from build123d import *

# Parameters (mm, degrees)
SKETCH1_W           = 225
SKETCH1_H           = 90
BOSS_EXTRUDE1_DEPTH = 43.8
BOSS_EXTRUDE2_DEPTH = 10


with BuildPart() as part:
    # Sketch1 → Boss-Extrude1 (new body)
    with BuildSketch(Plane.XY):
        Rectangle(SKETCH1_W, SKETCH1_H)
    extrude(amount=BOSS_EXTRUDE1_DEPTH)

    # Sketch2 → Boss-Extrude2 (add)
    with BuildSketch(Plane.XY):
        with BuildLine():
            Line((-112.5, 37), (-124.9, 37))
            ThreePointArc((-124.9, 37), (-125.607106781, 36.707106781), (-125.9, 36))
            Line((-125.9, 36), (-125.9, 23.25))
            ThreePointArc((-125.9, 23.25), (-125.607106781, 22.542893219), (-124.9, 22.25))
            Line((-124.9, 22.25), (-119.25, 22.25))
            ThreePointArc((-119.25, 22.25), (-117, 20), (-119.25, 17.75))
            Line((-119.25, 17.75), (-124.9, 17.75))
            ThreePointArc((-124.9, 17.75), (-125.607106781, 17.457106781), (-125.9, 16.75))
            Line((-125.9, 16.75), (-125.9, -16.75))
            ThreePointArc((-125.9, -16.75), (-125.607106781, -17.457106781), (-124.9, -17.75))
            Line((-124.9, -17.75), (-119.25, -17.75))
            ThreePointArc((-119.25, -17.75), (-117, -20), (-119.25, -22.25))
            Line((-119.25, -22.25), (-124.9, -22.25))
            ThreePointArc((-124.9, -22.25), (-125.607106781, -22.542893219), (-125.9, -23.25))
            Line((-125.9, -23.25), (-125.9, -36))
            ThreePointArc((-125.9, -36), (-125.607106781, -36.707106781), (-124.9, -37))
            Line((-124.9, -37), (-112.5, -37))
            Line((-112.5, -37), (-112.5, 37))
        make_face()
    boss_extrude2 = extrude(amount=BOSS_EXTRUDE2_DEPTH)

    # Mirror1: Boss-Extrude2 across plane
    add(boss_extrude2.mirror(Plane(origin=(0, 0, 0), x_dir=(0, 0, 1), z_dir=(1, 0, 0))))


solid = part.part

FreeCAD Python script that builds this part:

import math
import FreeCAD as App
import Part
import Sketcher

V = App.Vector

doc = App.newDocument("Part")
body = doc.addObject("PartDesign::Body", "Body")

sketch1 = doc.addObject("Sketcher::SketchObject", "Sketch")
body.addObject(sketch1)
sketch1.AttachmentSupport = (doc.XY_Plane, [""])
sketch1.MapMode = "FlatFace"
sketch1.addGeometry([
    Part.LineSegment(V(-112, 45, 0), V(-112, -45, 0)),
    Part.LineSegment(V(-112, -45, 0), V(112, -45, 0)),
    Part.LineSegment(V(112, -45, 0), V(112, 45, 0)),
    Part.LineSegment(V(112, 45, 0), V(-112, 45, 0)),
], False)
sketch1.addConstraint([
    Sketcher.Constraint("Coincident", 0, 2, 1, 1),
    Sketcher.Constraint("Coincident", 1, 2, 2, 1),
    Sketcher.Constraint("Coincident", 2, 2, 3, 1),
    Sketcher.Constraint("Coincident", 3, 2, 0, 1),
    Sketcher.Constraint("Vertical", 0),
    Sketcher.Constraint("Horizontal", 1),
    Sketcher.Constraint("Vertical", 2),
    Sketcher.Constraint("Horizontal", 3),
    Sketcher.Constraint("Symmetric", 0, 2, 2, 2, -1, 1),
    Sketcher.Constraint("DistanceX", 1, 1, 1, 2, 225.0),
    Sketcher.Constraint("DistanceY", 0, 2, 0, 1, 90.0),
])
pad1 = doc.addObject("PartDesign::Pad", "Pad")
body.addObject(pad1)
pad1.Profile = sketch1
pad1.Length = 43.8

sketch2 = doc.addObject("Sketcher::SketchObject", "Sketch001")
body.addObject(sketch2)
sketch2.AttachmentSupport = (doc.XY_Plane, [""])
sketch2.MapMode = "FlatFace"
sketch2.addGeometry([
    Part.LineSegment(V(-112.5, 37, 0), V(-124.9, 37, 0)),
    Part.ArcOfCircle(Part.Circle(V(-124.9, 36, 0), V(0, 0, 1), 1), math.radians(90), math.radians(180)),
    Part.LineSegment(V(-125.9, 36, 0), V(-125.9, 23.2, 0)),
    Part.ArcOfCircle(Part.Circle(V(-124.9, 23.3, 0), V(0, 0, 1), 1), math.radians(-180), math.radians(-90)),
    Part.LineSegment(V(-124.9, 22.2, 0), V(-119.2, 22.2, 0)),
    Part.ArcOfCircle(Part.Circle(V(-119.2, 20, 0), V(0, 0, 1), 2.2), math.radians(-90), math.radians(90)),
    Part.LineSegment(V(-119.2, 17.8, 0), V(-124.9, 17.8, 0)),
    Part.ArcOfCircle(Part.Circle(V(-124.9, 16.7, 0), V(0, 0, 1), 1), math.radians(90), math.radians(180)),
    Part.LineSegment(V(-125.9, 16.8, 0), V(-125.9, -16.8, 0)),
    Part.ArcOfCircle(Part.Circle(V(-124.9, -16.7, 0), V(0, 0, 1), 1), math.radians(-180), math.radians(-90)),
    Part.LineSegment(V(-124.9, -17.8, 0), V(-119.2, -17.8, 0)),
    Part.ArcOfCircle(Part.Circle(V(-119.2, -20, 0), V(0, 0, 1), 2.2), math.radians(-90), math.radians(90)),
    Part.LineSegment(V(-119.2, -22.2, 0), V(-124.9, -22.2, 0)),
    Part.ArcOfCircle(Part.Circle(V(-124.9, -23.3, 0), V(0, 0, 1), 1), math.radians(90), math.radians(180)),
    Part.LineSegment(V(-125.9, -23.2, 0), V(-125.9, -36, 0)),
    Part.ArcOfCircle(Part.Circle(V(-124.9, -36, 0), V(0, 0, 1), 1), math.radians(-180), math.radians(-90)),
    Part.LineSegment(V(-124.9, -37, 0), V(-112.5, -37, 0)),
    Part.LineSegment(V(-112.5, -37, 0), V(-112.5, 37, 0)),
], False)
sketch2.addConstraint([
    Sketcher.Constraint("Tangent", 0, 2, 1, 1),
    Sketcher.Constraint("Tangent", 1, 2, 2, 1),
    Sketcher.Constraint("Tangent", 2, 2, 3, 1),
    Sketcher.Constraint("Tangent", 3, 2, 4, 1),
    Sketcher.Constraint("Tangent", 4, 2, 5, 2),
    Sketcher.Constraint("Tangent", 5, 1, 6, 1),
    Sketcher.Constraint("Tangent", 6, 2, 7, 1),
    Sketcher.Constraint("Tangent", 7, 2, 8, 1),
    Sketcher.Constraint("Tangent", 8, 2, 9, 1),
    Sketcher.Constraint("Tangent", 9, 2, 10, 1),
    Sketcher.Constraint("Tangent", 10, 2, 11, 2),
    Sketcher.Constraint("Tangent", 11, 1, 12, 1),
    Sketcher.Constraint("Tangent", 12, 2, 13, 1),
    Sketcher.Constraint("Tangent", 13, 2, 14, 1),
    Sketcher.Constraint("Tangent", 14, 2, 15, 1),
    Sketcher.Constraint("Tangent", 15, 2, 16, 1),
    Sketcher.Constraint("Coincident", 16, 2, 17, 1),
    Sketcher.Constraint("Coincident", 17, 2, 0, 1),
    Sketcher.Constraint("Horizontal", 0),
    Sketcher.Constraint("Vertical", 2),
    Sketcher.Constraint("Horizontal", 4),
    Sketcher.Constraint("Horizontal", 6),
    Sketcher.Constraint("Vertical", 8),
    Sketcher.Constraint("Horizontal", 10),
    Sketcher.Constraint("Horizontal", 12),
    Sketcher.Constraint("Vertical", 14),
    Sketcher.Constraint("Horizontal", 16),
    Sketcher.Constraint("Vertical", 17),
    Sketcher.Constraint("Equal", 1, 3),
    Sketcher.Constraint("Equal", 3, 7),
    Sketcher.Constraint("Equal", 7, 9),
    Sketcher.Constraint("Equal", 5, 11),
    Sketcher.Constraint("Equal", 9, 13),
    Sketcher.Constraint("Equal", 13, 15),
    Sketcher.Constraint("Symmetric", 5, 3, 11, 3, -1),
    Sketcher.Constraint("Symmetric", 1, 3, 15, 3, -1),
    Sketcher.Constraint("Vertical", 3, 3, 7, 3),
    Sketcher.Constraint("Radius", 1, 1.0),
    Sketcher.Constraint("DistanceY", 17, 1, 17, 2, 74.0),
    Sketcher.Constraint("Radius", 5, 2.25),
    Sketcher.Constraint("DistanceX", 0, 2, 0, 1, 12.4),
    Sketcher.Constraint("DistanceY", 8, 2, 8, 1, 33.5),
    Sketcher.Constraint("DistanceX", 4, 1, 4, 2, 5.65),
    Sketcher.Constraint("DistanceX", 1, 3, -1, 1, 124.9),
])
pad2 = doc.addObject("PartDesign::Pad", "Pad001")
body.addObject(pad2)
pad2.Profile = sketch2
pad2.Length = 10
doc.recompute()

mirrored = doc.addObject("PartDesign::Mirrored", "Mirrored")
body.addObject(mirrored)
mirrored.Originals = [pad2]
mirrored.MirrorPlane = (doc.YZ_Plane, [""])
body.Tip = mirrored

doc.recompute()
